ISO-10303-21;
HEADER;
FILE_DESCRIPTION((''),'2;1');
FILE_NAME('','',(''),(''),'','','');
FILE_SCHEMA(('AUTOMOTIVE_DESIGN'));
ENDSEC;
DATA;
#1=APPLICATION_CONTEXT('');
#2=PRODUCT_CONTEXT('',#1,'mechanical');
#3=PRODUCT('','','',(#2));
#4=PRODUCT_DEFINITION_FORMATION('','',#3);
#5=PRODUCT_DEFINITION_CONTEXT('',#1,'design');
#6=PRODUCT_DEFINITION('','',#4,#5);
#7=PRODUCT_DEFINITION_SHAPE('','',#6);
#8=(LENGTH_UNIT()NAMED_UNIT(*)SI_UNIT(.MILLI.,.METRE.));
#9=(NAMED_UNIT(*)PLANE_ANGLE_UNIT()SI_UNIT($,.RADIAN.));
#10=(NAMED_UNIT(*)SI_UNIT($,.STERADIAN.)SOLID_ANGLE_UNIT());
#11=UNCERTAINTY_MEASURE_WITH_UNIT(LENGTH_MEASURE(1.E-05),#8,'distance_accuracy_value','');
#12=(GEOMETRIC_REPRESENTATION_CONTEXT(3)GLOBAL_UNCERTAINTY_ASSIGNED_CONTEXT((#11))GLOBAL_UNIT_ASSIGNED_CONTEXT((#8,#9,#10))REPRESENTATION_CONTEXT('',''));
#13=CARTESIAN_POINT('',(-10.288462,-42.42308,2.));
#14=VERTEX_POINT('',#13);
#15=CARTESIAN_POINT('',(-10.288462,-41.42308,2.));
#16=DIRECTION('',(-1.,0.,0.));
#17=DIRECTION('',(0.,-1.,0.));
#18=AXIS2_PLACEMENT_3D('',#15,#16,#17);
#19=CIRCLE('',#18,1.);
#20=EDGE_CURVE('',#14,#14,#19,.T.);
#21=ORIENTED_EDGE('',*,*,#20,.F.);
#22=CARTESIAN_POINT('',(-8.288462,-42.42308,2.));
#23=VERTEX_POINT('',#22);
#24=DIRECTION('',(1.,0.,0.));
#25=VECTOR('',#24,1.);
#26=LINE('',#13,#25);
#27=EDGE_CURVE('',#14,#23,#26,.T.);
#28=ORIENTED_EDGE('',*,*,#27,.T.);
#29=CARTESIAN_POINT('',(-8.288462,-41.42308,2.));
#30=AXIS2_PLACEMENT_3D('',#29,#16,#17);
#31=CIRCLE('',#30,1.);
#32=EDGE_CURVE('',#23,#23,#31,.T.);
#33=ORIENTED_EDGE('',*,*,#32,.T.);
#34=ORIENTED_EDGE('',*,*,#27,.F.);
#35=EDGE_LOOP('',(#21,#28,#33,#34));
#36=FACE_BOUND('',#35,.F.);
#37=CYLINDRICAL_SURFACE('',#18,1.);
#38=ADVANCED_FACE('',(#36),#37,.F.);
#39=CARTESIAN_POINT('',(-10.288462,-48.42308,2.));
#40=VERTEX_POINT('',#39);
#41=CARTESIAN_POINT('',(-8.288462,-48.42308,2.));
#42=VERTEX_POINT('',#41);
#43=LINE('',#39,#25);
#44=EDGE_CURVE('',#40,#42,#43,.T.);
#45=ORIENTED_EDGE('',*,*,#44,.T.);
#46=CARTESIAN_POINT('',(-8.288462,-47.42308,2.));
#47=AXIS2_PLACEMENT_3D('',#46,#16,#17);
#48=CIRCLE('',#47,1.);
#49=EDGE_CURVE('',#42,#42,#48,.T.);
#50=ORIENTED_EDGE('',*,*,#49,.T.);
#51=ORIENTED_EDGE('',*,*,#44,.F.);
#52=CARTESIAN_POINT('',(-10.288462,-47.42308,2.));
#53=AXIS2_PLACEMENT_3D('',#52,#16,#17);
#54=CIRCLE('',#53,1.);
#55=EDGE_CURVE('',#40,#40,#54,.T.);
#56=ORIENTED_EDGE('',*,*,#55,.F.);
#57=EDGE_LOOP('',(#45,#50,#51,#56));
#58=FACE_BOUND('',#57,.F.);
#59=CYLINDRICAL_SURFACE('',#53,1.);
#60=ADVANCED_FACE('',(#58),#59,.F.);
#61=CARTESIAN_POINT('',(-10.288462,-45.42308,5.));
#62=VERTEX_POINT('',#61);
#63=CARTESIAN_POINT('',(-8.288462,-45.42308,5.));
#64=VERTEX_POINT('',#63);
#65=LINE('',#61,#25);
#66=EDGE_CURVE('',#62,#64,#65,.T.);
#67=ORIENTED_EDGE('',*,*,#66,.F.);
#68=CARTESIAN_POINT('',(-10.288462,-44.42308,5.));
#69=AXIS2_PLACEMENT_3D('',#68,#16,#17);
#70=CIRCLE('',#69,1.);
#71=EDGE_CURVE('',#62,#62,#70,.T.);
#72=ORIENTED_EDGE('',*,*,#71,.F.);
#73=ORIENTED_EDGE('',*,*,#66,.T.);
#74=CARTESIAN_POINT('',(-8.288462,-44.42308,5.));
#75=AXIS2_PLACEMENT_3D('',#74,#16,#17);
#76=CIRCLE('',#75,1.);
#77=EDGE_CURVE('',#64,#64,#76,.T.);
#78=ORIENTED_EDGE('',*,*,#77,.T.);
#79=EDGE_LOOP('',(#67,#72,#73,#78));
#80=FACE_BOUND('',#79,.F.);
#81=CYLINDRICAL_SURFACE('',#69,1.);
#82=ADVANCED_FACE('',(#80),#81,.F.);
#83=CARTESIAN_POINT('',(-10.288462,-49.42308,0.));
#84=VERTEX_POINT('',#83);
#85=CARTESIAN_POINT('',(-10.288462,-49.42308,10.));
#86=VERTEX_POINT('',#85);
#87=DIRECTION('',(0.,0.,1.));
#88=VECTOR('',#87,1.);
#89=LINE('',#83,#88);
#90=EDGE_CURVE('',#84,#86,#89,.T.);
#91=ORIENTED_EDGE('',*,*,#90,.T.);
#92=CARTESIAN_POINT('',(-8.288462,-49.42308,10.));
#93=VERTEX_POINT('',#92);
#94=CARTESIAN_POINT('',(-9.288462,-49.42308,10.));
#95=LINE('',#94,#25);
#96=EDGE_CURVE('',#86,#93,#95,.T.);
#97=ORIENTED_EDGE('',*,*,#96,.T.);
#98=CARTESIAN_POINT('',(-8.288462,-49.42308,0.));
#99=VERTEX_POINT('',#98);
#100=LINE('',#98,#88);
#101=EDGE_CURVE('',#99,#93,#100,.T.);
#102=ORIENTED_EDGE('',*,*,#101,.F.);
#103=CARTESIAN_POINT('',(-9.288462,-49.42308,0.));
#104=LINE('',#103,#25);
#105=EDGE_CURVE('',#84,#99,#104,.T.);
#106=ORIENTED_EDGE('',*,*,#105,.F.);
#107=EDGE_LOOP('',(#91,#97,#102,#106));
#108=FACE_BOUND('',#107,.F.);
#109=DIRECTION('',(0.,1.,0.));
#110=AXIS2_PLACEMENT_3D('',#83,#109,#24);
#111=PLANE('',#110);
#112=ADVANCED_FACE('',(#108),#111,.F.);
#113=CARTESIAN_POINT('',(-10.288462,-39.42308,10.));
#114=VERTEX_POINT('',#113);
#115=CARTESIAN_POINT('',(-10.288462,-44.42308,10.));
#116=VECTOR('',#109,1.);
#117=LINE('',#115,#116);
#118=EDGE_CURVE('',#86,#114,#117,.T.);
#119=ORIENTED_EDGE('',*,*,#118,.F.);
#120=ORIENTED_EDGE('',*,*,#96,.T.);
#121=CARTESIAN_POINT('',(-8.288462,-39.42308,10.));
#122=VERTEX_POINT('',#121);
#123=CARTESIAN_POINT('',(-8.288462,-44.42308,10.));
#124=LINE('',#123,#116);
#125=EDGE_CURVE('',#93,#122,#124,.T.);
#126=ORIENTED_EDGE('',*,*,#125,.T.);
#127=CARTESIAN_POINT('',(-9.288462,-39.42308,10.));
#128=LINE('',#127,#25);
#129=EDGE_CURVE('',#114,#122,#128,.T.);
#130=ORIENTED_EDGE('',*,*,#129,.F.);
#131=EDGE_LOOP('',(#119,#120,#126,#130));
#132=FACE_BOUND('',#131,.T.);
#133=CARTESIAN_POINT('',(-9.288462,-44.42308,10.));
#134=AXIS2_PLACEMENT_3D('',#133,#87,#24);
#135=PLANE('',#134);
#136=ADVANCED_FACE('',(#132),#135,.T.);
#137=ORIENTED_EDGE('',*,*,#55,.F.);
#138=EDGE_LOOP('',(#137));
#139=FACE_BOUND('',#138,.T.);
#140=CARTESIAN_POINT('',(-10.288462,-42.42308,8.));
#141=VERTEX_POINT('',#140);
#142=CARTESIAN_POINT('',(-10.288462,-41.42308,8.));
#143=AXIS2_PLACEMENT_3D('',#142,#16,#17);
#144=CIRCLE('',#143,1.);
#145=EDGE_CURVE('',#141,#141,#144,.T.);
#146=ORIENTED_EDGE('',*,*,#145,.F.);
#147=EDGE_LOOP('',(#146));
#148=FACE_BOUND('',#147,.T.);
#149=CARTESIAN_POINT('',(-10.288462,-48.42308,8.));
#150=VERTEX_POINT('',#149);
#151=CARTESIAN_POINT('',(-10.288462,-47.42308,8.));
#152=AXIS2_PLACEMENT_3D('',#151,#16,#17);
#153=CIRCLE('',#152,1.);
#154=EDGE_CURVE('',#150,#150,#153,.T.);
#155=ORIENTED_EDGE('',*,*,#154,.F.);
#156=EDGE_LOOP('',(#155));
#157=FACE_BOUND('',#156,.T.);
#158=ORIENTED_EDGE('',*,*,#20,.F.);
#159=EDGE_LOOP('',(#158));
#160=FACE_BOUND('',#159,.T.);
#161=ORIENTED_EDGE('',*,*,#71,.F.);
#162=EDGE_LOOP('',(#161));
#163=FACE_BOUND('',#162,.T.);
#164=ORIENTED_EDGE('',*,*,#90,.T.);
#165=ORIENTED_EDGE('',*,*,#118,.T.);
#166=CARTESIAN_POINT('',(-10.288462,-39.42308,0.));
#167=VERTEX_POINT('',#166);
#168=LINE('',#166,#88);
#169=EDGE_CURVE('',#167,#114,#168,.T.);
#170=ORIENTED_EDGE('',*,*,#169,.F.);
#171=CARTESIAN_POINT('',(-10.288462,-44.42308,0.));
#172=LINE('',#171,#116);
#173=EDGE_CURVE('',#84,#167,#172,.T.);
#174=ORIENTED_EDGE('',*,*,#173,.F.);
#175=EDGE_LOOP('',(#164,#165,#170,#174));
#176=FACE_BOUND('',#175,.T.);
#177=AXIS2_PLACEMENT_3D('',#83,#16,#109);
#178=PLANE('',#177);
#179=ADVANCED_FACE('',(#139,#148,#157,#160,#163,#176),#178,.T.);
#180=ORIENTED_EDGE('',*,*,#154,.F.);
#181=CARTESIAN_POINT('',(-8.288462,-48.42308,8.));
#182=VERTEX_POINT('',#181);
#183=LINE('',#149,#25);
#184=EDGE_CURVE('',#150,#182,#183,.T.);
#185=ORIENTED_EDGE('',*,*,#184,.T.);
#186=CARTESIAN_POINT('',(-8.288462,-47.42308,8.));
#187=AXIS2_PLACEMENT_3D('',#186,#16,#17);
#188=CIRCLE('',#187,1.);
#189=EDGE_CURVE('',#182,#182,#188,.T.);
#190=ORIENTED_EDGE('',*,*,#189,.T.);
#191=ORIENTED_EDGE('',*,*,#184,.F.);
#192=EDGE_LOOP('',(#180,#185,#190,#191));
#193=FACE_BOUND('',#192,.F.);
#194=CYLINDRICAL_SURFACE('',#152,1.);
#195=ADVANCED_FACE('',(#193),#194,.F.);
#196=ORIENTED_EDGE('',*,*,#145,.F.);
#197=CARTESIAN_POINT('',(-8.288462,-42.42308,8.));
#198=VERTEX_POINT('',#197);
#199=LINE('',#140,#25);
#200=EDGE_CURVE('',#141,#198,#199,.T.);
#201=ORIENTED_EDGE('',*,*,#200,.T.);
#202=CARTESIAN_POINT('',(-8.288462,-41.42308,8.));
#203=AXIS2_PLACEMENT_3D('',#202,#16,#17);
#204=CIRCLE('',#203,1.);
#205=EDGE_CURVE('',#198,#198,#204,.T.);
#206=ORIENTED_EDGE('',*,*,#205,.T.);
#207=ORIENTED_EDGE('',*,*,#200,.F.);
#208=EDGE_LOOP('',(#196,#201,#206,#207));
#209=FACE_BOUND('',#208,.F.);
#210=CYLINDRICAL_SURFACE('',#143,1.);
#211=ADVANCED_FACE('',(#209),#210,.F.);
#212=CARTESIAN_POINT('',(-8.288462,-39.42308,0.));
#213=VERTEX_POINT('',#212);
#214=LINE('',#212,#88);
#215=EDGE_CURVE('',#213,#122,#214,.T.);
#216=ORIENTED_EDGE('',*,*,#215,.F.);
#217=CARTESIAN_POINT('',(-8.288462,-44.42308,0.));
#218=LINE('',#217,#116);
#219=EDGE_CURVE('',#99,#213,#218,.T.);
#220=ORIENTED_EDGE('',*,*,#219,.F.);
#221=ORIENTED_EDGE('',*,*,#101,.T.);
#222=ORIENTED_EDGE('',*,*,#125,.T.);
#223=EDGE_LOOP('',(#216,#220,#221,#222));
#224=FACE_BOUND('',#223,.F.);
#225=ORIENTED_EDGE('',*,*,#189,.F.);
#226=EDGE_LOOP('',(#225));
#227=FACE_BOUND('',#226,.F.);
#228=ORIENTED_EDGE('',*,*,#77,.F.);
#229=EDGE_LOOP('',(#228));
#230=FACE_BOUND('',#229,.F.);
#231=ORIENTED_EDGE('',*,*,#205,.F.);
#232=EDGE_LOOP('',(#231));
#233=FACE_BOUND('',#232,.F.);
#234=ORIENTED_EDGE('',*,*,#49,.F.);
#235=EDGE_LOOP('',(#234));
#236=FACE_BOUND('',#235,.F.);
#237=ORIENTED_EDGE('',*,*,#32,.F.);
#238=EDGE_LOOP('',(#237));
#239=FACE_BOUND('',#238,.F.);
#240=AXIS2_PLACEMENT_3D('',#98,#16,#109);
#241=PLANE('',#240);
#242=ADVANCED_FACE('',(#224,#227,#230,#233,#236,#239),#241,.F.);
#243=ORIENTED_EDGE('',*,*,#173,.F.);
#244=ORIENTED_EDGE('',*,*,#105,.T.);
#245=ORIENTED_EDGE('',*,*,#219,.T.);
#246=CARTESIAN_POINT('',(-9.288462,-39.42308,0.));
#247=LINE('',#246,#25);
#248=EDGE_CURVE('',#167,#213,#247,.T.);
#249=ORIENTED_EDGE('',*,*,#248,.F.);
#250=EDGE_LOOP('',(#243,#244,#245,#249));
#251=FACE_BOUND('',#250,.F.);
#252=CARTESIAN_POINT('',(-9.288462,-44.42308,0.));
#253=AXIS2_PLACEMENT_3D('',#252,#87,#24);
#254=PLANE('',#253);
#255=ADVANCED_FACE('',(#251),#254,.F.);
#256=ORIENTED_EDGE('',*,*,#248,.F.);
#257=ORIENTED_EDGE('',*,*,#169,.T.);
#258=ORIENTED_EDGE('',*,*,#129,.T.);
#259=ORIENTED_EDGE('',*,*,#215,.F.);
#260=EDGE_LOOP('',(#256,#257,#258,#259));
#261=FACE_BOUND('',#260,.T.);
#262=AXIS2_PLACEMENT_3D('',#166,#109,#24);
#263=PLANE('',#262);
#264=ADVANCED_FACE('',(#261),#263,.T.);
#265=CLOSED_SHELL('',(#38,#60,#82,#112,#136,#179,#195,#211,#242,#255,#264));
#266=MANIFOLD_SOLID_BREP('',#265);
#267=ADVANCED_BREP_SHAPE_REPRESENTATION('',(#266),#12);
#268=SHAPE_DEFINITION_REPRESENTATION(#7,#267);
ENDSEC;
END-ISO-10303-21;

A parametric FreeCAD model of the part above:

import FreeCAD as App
import Part
import Sketcher
Q = App.Units.Quantity


def add_polygon(sketch, points):
    """Adds a closed chain of lines whose ends are joined by coincident constraints."""
    first, n = sketch.GeometryCount, len(points)
    for a, b in zip(points, points[1:] + points[:1]):
        sketch.addGeometry(Part.LineSegment(App.Vector(*a, 0), App.Vector(*b, 0)), False)
    for i in range(n):
        sketch.addConstraint(Sketcher.Constraint("Coincident", first + i, 2, first + (i + 1) % n, 1))

doc = App.newDocument("Part")
body = doc.addObject("PartDesign::Body", "Body")

sketch1 = body.newObject("Sketcher::SketchObject", "Sketch")
sketch1.AttachmentSupport = (doc.getObject("XY_Plane"), [""])
sketch1.MapMode = "FlatFace"
add_polygon(sketch1, [(-10.3, -39.4), (-10.3, -49.4), (-8.3, -49.4), (-8.3, -39.4)])
sketch1.addConstraint([
    Sketcher.Constraint("Vertical", 0),
    Sketcher.Constraint("Horizontal", 1),
    Sketcher.Constraint("Vertical", 2),
    Sketcher.Constraint("Horizontal", 3),
    Sketcher.Constraint("DistanceX", 1, 1, 1, 2, Q("2 mm")),
    Sketcher.Constraint("DistanceY", 0, 2, 0, 1, Q("10 mm")),
    Sketcher.Constraint("DistanceY", 0, 2, -1, 1, Q("49.42308 mm")),
    Sketcher.Constraint("DistanceX", 0, 2, -1, 1, Q("10.288462 mm")),
])
pad1 = body.newObject("PartDesign::Pad", "Pad")
pad1.Profile = sketch1
pad1.Length = 10

sketch2 = body.newObject("Sketcher::SketchObject", "Sketch001")
sketch2.AttachmentSupport = (doc.getObject("YZ_Plane"), [""])
sketch2.MapMode = "FlatFace"
sketch2.AttachmentOffset = App.Placement(App.Vector(0, 0, -10.288462), App.Rotation())
sketch2.addGeometry([
    Part.Circle(App.Vector(-41.4, 8, 0), App.Vector(0, 0, 1), 1),
    Part.Circle(App.Vector(-44.4, 5, 0), App.Vector(0, 0, 1), 1),
    Part.Circle(App.Vector(-47.4, 8, 0), App.Vector(0, 0, 1), 1),
    Part.Circle(App.Vector(-47.4, 2, 0), App.Vector(0, 0, 1), 1),
    Part.Circle(App.Vector(-41.4, 2, 0), App.Vector(0, 0, 1), 1),
], False)
sketch2.addConstraint([
    Sketcher.Constraint("Equal", 0, 1),
    Sketcher.Constraint("Equal", 1, 2),
    Sketcher.Constraint("Equal", 2, 3),
    Sketcher.Constraint("Equal", 3, 4),
    Sketcher.Constraint("Horizontal", 0, 3, 2, 3),
    Sketcher.Constraint("Horizontal", 3, 3, 4, 3),
    Sketcher.Constraint("Vertical", 2, 3, 3, 3),
    Sketcher.Constraint("Vertical", 0, 3, 4, 3),
    Sketcher.Constraint("Diameter", 0, Q("2 mm")),
    Sketcher.Constraint("DistanceY", -1, 1, 0, 3, Q("8 mm")),
    Sketcher.Constraint("DistanceY", -1, 1, 1, 3, Q("5 mm")),
    Sketcher.Constraint("DistanceY", -1, 1, 3, 3, Q("2 mm")),
    Sketcher.Constraint("DistanceX", 1, 3, 0, 3, Q("3 mm")),
    Sketcher.Constraint("DistanceX", 2, 3, 1, 3, Q("3 mm")),
    Sketcher.Constraint("DistanceX", 0, 3, -1, 1, Q("41.42308 mm")),
])
pocket1 = body.newObject("PartDesign::Pocket", "Pocket")
pocket1.Profile = sketch2
pocket1.Length = 3
pocket1.Reversed = True

doc.recompute()
